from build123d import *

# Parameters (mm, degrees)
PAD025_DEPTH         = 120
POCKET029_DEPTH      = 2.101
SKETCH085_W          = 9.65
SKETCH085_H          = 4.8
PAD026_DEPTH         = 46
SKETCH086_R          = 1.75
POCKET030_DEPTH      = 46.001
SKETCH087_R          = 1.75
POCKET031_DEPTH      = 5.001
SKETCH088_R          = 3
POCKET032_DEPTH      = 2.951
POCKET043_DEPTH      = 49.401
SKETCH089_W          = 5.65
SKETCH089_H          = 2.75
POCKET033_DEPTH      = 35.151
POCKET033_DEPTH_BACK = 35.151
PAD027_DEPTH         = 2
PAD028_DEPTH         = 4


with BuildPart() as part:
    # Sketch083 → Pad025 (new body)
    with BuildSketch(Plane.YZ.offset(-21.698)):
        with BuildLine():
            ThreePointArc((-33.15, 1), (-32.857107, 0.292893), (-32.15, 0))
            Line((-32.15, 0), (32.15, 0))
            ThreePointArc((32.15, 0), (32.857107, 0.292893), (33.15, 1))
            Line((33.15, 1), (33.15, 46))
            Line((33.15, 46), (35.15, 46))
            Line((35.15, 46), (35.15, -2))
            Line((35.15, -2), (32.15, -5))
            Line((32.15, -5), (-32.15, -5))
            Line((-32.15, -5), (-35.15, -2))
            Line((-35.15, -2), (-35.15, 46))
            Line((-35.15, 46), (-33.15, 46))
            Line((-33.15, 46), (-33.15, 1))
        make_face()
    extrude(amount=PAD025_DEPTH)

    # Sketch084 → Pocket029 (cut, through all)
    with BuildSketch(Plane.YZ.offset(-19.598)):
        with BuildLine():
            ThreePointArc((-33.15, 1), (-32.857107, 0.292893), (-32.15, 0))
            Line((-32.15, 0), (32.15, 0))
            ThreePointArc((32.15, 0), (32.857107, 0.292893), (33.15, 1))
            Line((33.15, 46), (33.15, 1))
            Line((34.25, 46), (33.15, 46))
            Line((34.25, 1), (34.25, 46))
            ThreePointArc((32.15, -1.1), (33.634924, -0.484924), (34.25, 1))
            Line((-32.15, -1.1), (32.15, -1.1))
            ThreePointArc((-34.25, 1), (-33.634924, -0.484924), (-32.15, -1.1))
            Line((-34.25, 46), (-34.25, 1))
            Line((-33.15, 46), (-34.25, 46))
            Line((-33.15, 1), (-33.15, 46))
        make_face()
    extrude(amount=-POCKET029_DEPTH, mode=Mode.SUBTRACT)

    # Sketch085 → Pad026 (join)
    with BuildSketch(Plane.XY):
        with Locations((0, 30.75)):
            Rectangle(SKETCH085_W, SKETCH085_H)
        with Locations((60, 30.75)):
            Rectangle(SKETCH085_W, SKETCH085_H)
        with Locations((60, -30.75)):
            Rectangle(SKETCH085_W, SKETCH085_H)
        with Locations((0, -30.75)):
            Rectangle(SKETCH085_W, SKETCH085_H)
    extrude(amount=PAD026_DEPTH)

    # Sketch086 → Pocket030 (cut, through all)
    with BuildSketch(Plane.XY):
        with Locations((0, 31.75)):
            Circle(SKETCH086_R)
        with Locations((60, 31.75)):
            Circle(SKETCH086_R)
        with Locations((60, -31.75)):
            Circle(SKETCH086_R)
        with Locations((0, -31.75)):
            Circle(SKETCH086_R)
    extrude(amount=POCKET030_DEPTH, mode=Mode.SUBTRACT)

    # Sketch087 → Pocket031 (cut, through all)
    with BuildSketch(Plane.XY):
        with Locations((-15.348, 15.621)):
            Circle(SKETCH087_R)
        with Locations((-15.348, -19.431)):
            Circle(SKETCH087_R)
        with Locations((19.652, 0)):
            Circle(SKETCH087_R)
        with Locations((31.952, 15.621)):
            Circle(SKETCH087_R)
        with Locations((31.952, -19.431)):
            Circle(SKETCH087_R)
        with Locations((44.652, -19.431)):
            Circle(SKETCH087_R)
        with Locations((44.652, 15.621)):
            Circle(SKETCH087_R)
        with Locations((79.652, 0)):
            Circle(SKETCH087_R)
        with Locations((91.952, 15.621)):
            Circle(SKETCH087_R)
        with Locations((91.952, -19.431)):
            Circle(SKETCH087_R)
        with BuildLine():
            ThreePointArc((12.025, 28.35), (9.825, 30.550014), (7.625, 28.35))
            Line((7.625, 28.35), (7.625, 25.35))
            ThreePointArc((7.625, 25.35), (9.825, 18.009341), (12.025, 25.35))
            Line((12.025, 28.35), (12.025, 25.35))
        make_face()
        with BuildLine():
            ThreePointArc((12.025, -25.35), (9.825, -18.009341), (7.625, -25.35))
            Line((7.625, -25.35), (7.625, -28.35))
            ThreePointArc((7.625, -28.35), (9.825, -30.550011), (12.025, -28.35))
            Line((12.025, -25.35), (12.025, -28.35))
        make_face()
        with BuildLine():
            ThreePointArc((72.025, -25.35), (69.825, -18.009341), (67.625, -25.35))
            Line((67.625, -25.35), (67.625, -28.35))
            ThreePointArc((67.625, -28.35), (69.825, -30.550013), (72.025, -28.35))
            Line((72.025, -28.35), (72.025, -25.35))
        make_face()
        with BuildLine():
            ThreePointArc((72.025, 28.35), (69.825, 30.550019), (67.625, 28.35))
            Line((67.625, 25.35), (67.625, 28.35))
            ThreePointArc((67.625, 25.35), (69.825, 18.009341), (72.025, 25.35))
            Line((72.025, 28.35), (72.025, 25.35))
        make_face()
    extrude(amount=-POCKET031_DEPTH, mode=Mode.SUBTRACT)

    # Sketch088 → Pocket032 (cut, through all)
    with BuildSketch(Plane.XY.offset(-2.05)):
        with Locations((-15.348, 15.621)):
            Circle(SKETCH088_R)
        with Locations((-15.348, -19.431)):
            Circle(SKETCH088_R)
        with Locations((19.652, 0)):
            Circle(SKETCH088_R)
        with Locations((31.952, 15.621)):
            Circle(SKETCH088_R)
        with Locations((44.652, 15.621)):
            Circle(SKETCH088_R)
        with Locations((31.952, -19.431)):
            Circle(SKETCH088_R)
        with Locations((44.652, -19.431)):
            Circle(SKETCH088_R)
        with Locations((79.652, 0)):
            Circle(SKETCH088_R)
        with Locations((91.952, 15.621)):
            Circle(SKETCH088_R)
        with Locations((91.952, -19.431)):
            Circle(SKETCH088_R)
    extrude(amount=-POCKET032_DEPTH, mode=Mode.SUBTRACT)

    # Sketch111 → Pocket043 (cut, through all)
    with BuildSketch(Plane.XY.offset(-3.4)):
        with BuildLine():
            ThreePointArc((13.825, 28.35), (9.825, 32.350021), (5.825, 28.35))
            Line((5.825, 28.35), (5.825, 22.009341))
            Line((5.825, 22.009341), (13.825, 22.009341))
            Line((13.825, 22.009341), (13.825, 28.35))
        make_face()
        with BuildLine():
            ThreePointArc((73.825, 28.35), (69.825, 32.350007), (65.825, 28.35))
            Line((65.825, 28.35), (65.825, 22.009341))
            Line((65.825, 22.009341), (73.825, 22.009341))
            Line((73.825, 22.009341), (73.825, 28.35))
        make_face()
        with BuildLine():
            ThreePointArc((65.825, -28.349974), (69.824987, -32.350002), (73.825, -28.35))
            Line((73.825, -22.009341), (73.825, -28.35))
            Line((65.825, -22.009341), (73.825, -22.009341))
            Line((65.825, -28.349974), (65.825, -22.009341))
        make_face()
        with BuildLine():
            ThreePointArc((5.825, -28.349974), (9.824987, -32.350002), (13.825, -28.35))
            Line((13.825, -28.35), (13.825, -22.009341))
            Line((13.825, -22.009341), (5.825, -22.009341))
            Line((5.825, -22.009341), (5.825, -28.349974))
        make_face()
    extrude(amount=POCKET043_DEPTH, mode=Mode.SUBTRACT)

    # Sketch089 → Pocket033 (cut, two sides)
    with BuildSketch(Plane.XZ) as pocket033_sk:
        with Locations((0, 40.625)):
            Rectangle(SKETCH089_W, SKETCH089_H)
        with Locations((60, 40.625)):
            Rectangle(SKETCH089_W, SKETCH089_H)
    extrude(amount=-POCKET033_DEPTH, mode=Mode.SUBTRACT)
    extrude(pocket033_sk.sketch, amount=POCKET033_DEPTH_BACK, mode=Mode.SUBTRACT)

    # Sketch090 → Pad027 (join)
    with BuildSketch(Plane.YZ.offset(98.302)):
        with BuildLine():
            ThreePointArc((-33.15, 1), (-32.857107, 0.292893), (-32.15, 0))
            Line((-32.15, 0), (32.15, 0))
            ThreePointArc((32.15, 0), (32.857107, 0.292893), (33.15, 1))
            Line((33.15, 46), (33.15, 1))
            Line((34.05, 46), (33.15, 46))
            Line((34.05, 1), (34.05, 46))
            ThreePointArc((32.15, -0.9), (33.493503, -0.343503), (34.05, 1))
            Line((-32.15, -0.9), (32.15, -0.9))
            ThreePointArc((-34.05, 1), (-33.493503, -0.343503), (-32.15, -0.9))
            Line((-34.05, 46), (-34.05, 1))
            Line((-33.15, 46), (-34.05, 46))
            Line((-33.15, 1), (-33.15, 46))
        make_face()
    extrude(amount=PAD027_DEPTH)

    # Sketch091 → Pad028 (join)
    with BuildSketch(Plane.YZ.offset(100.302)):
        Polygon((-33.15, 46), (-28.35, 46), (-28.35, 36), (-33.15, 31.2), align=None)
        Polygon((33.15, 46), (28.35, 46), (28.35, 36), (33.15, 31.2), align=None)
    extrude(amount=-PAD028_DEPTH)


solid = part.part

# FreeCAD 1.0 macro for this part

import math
import FreeCAD as App
import Part
import Sketcher
from FreeCAD import Vector


def add_polygon(sketch, points):
    """Adds a closed chain of lines whose ends are joined by coincident constraints."""
    first, n = sketch.GeometryCount, len(points)
    for a, b in zip(points, points[1:] + points[:1]):
        sketch.addGeometry(Part.LineSegment(App.Vector(*a, 0), App.Vector(*b, 0)), False)
    for i in range(n):
        sketch.addConstraint(Sketcher.Constraint("Coincident", first + i, 2, first + (i + 1) % n, 1))

doc = App.newDocument("Part")
body = doc.addObject("PartDesign::Body", "Body")

# Sketch on YZ plane
sketch1 = doc.addObject("Sketcher::SketchObject", "Sketch")
body.addObject(sketch1)
sketch1.AttachmentSupport = (doc.YZ_Plane, [""])
sketch1.MapMode = "FlatFace"
sketch1.AttachmentOffset = App.Placement(Vector(0, 0, -21.698), App.Rotation())
sketch1.addGeometry(Part.ArcOfCircle(Part.Circle(Vector(-32.150001, 0.999999, 0), Vector(0, 0, 1), 0.999999), math.radians(179.999957), math.radians(270.000043)), False)
sketch1.addGeometry(Part.LineSegment(Vector(-33.15, 1, 0), Vector(-33.15, 46, 0)), False)
sketch1.addGeometry(Part.LineSegment(Vector(-33.15, 46, 0), Vector(-35.15, 46, 0)), False)
sketch1.addGeometry(Part.LineSegment(Vector(-35.15, 46, 0), Vector(-35.15, -2, 0)), False)
sketch1.addGeometry(Part.LineSegment(Vector(-35.15, -2, 0), Vector(-32.15, -5, 0)), False)
sketch1.addGeometry(Part.LineSegment(Vector(-32.15, -5, 0), Vector(32.15, -5, 0)), False)
sketch1.addGeometry(Part.LineSegment(Vector(32.15, -5, 0), Vector(35.15, -2, 0)), False)
sketch1.addGeometry(Part.LineSegment(Vector(35.15, -2, 0), Vector(35.15, 46, 0)), False)
sketch1.addGeometry(Part.LineSegment(Vector(35.15, 46, 0), Vector(33.15, 46, 0)), False)
sketch1.addGeometry(Part.LineSegment(Vector(33.15, 46, 0), Vector(33.15, 1, 0)), False)
sketch1.addGeometry(Part.ArcOfCircle(Part.Circle(Vector(32.150001, 0.999999, 0), Vector(0, 0, 1), 0.999999), math.radians(-90.000043), math.radians(0.000043)), False)
sketch1.addGeometry(Part.LineSegment(Vector(32.15, 0, 0), Vector(-32.15, 0, 0)), False)
sketch1.addConstraint(Sketcher.Constraint("Tangent", 0, 1, 1, 1))
sketch1.addConstraint(Sketcher.Constraint("Coincident", 1, 2, 2, 1))
sketch1.addConstraint(Sketcher.Constraint("Coincident", 2, 2, 3, 1))
sketch1.addConstraint(Sketcher.Constraint("Coincident", 3, 2, 4, 1))
sketch1.addConstraint(Sketcher.Constraint("Coincident", 4, 2, 5, 1))
sketch1.addConstraint(Sketcher.Constraint("Coincident", 5, 2, 6, 1))
sketch1.addConstraint(Sketcher.Constraint("Coincident", 6, 2, 7, 1))
sketch1.addConstraint(Sketcher.Constraint("Coincident", 7, 2, 8, 1))
sketch1.addConstraint(Sketcher.Constraint("Coincident", 8, 2, 9, 1))
sketch1.addConstraint(Sketcher.Constraint("Tangent", 9, 2, 10, 2))
sketch1.addConstraint(Sketcher.Constraint("Tangent", 10, 1, 11, 1))
sketch1.addConstraint(Sketcher.Constraint("Tangent", 11, 2, 0, 2))
sketch1.addConstraint(Sketcher.Constraint("Vertical", 1))
sketch1.addConstraint(Sketcher.Constraint("Horizontal", 2))
sketch1.addConstraint(Sketcher.Constraint("Vertical", 3))
sketch1.addConstraint(Sketcher.Constraint("Horizontal", 5))
sketch1.addConstraint(Sketcher.Constraint("Vertical", 7))
sketch1.addConstraint(Sketcher.Constraint("Horizontal", 8))
sketch1.addConstraint(Sketcher.Constraint("Vertical", 9))
sketch1.addConstraint(Sketcher.Constraint("Horizontal", 11))
sketch1.addConstraint(Sketcher.Constraint("Equal", 0, 10))
sketch1.addConstraint(Sketcher.Constraint("Symmetric", 10, 1, 11, 2, -1, 1))
sketch1.addConstraint(Sketcher.Constraint("Symmetric", 3, 2, 6, 2, -2))
sketch1.addConstraint(Sketcher.Constraint("Perpendicular", 4, 6))
sketch1.addConstraint(Sketcher.Constraint("Horizontal", 2, 2, 7, 2))
sketch1.addConstraint(Sketcher.Constraint("Vertical", 0, 3, 4, 2))
sketch1.addConstraint(Sketcher.Constraint("Vertical", 10, 3, 5, 2))
sketch1.addConstraint(Sketcher.Constraint("Radius", 0, 0.999999))
sketch1.addConstraint(Sketcher.Constraint("DistanceX", 2, 2, 2, 1, 2.0))
sketch1.addConstraint(Sketcher.Constraint("DistanceY", 1, 1, 1, 2, 45.0))
sketch1.addConstraint(Sketcher.Constraint("DistanceY", 3, 2, 3, 1, 48.0))
sketch1.addConstraint(Sketcher.Constraint("DistanceX", 5, 1, 5, 2, 64.3))
pad1 = doc.addObject("PartDesign::Pad", "Pad")
body.addObject(pad1)
pad1.Profile = sketch1
pad1.Length = 120

# Sketch on YZ plane
sketch2 = doc.addObject("Sketcher::SketchObject", "Sketch001")
body.addObject(sketch2)
sketch2.AttachmentSupport = (doc.YZ_Plane, [""])
sketch2.MapMode = "FlatFace"
sketch2.AttachmentOffset = App.Placement(Vector(0, 0, -19.598), App.Rotation())
sketch2.addGeometry(Part.ArcOfCircle(Part.Circle(Vector(-32.150001, 0.999999, 0), Vector(0, 0, 1), 0.999999), math.radians(179.999957), math.radians(270.000043)), False)
sketch2.addGeometry(Part.LineSegment(Vector(-33.15, 1, 0), Vector(-33.15, 46, 0)), False)
sketch2.addGeometry(Part.LineSegment(Vector(-33.15, 46, 0), Vector(-34.25, 46, 0)), False)
sketch2.addGeometry(Part.LineSegment(Vector(-34.25, 46, 0), Vector(-34.25, 1, 0)), False)
sketch2.addGeometry(Part.ArcOfCircle(Part.Circle(Vector(-32.149999, 1.000001, 0), Vector(0, 0, 1), 2.100001), math.radians(-179.999978), math.radians(-90.000022)), False)
sketch2.addGeometry(Part.LineSegment(Vector(-32.15, -1.1, 0), Vector(32.15, -1.1, 0)), False)
sketch2.addGeometry(Part.ArcOfCircle(Part.Circle(Vector(32.149999, 1.000001, 0), Vector(0, 0, 1), 2.100001), math.radians(-89.999978), math.radians(-0.000022)), False)
sketch2.addGeometry(Part.LineSegment(Vector(34.25, 1, 0), Vector(34.25, 46, 0)), False)
sketch2.addGeometry(Part.LineSegment(Vector(34.25, 46, 0), Vector(33.15, 46, 0)), False)
sketch2.addGeometry(Part.LineSegment(Vector(33.15, 46, 0), Vector(33.15, 1, 0)), False)
sketch2.addGeometry(Part.ArcOfCircle(Part.Circle(Vector(32.150001, 0.999999, 0), Vector(0, 0, 1), 0.999999), math.radians(-90.000043), math.radians(0.000043)), False)
sketch2.addGeometry(Part.LineSegment(Vector(32.15, 0, 0), Vector(-32.15, 0, 0)), False)
sketch2.addConstraint(Sketcher.Constraint("Tangent", 0, 1, 1, 1))
sketch2.addConstraint(Sketcher.Constraint("Coincident", 1, 2, 2, 1))
sketch2.addConstraint(Sketcher.Constraint("Coincident", 2, 2, 3, 1))
sketch2.addConstraint(Sketcher.Constraint("Tangent", 3, 2, 4, 1))
sketch2.addConstraint(Sketcher.Constraint("Tangent", 4, 2, 5, 1))
sketch2.addConstraint(Sketcher.Constraint("Tangent", 5, 2, 6, 1))
sketch2.addConstraint(Sketcher.Constraint("Tangent", 6, 2, 7, 1))
sketch2.addConstraint(Sketcher.Constraint("Coincident", 7, 2, 8, 1))
sketch2.addConstraint(Sketcher.Constraint("Coincident", 8, 2, 9, 1))
sketch2.addConstraint(Sketcher.Constraint("Tangent", 9, 2, 10, 2))
sketch2.addConstraint(Sketcher.Constraint("Tangent", 10, 1, 11, 1))
sketch2.addConstraint(Sketcher.Constraint("Tangent", 11, 2, 0, 2))
sketch2.addConstraint(Sketcher.Constraint("Vertical", 1))
sketch2.addConstraint(Sketcher.Constraint("Horizontal", 2))
sketch2.addConstraint(Sketcher.Constraint("Vertical", 3))
sketch2.addConstraint(Sketcher.Constraint("Horizontal", 5))
sketch2.addConstraint(Sketcher.Constraint("Vertical", 7))
sketch2.addConstraint(Sketcher.Constraint("Horizontal", 8))
sketch2.addConstraint(Sketcher.Constraint("Vertical", 9))
sketch2.addConstraint(Sketcher.Constraint("Horizontal", 11))
sketch2.addConstraint(Sketcher.Constraint("Coincident", 4, 3, 0, 3))
sketch2.addConstraint(Sketcher.Constraint("Coincident", 10, 3, 6, 3))
sketch2.addConstraint(Sketcher.Constraint("Equal", 4, 6))
sketch2.addConstraint(Sketcher.Constraint("Symmetric", 10, 1, 11, 2, -1, 1))
sketch2.addConstraint(Sketcher.Constraint("Horizontal", 2, 2, 7, 2))
sketch2.addConstraint(Sketcher.Constraint("Radius", 0, 0.999999))
sketch2.addConstraint(Sketcher.Constraint("Radius", 4, 2.100001))
sketch2.addConstraint(Sketcher.Constraint("DistanceY", 1, 1, 1, 2, 45.0))
sketch2.addConstraint(Sketcher.Constraint("DistanceX", 5, 1, 5, 2, 64.3))
pocket1 = doc.addObject("PartDesign::Pocket", "Pocket")
body.addObject(pocket1)
pocket1.Profile = sketch2
pocket1.Type = "ThroughAll"

# Sketch on XY plane
sketch3 = doc.addObject("Sketcher::SketchObject", "Sketch002")
body.addObject(sketch3)
sketch3.AttachmentSupport = (doc.XY_Plane, [""])
sketch3.MapMode = "FlatFace"
add_polygon(sketch3, [(-4.825, 33.15), (-4.825, 28.35), (4.825, 28.35), (4.825, 33.15)])  # lines 0-3
add_polygon(sketch3, [(55.175, 33.15), (55.175, 28.35), (64.825, 28.35), (64.825, 33.15)])  # lines 4-7
add_polygon(sketch3, [(55.175, -28.35), (55.175, -33.15), (64.825, -33.15), (64.825, -28.35)])  # lines 8-11
add_polygon(sketch3, [(-4.825, -28.35), (-4.825, -33.15), (4.825, -33.15), (4.825, -28.35)])  # lines 12-15
sketch3.addConstraint(Sketcher.Constraint("Vertical", 0))
sketch3.addConstraint(Sketcher.Constraint("Horizontal", 1))
sketch3.addConstraint(Sketcher.Constraint("Vertical", 2))
sketch3.addConstraint(Sketcher.Constraint("Horizontal", 3))
sketch3.addConstraint(Sketcher.Constraint("Vertical", 4))
sketch3.addConstraint(Sketcher.Constraint("Horizontal", 5))
sketch3.addConstraint(Sketcher.Constraint("Vertical", 6))
sketch3.addConstraint(Sketcher.Constraint("Horizontal", 7))
sketch3.addConstraint(Sketcher.Constraint("Vertical", 8))
sketch3.addConstraint(Sketcher.Constraint("Horizontal", 9))
sketch3.addConstraint(Sketcher.Constraint("Vertical", 10))
sketch3.addConstraint(Sketcher.Constraint("Horizontal", 11))
sketch3.addConstraint(Sketcher.Constraint("Vertical", 12))
sketch3.addConstraint(Sketcher.Constraint("Horizontal", 13))
sketch3.addConstraint(Sketcher.Constraint("Vertical", 14))
sketch3.addConstraint(Sketcher.Constraint("Horizontal", 15))
sketch3.addConstraint(Sketcher.Constraint("Symmetric", 2, 2, 12, 2, -1, 1))
sketch3.addConstraint(Sketcher.Constraint("Symmetric", 0, 2, 14, 2, -1, 1))
sketch3.addConstraint(Sketcher.Constraint("Symmetric", 7, 2, 8, 2, -1))
sketch3.addConstraint(Sketcher.Constraint("Symmetric", 5, 2, 10, 2, -1))
sketch3.addConstraint(Sketcher.Constraint("Horizontal", 1, 2, 4, 2))
sketch3.addConstraint(Sketcher.Constraint("Horizontal", 3, 2, 6, 2))
sketch3.addConstraint(Sketcher.Constraint("Vertical", 3, 2, 12, 2))
sketch3.addConstraint(Sketcher.Constraint("Equal", 3, 5))
sketch3.addConstraint(Sketcher.Constraint("DistanceY", 0, 2, 0, 1, 4.8))
sketch3.addConstraint(Sketcher.Constraint("DistanceX", 0, 2, 4, 2, 60.0))
sketch3.addConstraint(Sketcher.Constraint("DistanceX", 1, 1, 1, 2, 9.65))
sketch3.addConstraint(Sketcher.Constraint("DistanceY", 8, 2, 4, 2, 61.5))
pad2 = doc.addObject("PartDesign::Pad", "Pad001")
body.addObject(pad2)
pad2.Profile = sketch3
pad2.Length = 46

# Sketch on XY plane
sketch4 = doc.addObject("Sketcher::SketchObject", "Sketch003")
body.addObject(sketch4)
sketch4.AttachmentSupport = (doc.XY_Plane, [""])
sketch4.MapMode = "FlatFace"
sketch4.addGeometry(Part.Circle(Vector(0, 31.75, 0), Vector(0, 0, 1), 1.75), False)
sketch4.addGeometry(Part.Circle(Vector(60, 31.75, 0), Vector(0, 0, 1), 1.75), False)
sketch4.addGeometry(Part.Circle(Vector(60, -31.75, 0), Vector(0, 0, 1), 1.75), False)
sketch4.addGeometry(Part.Circle(Vector(0, -31.75, 0), Vector(0, 0, 1), 1.75), False)
sketch4.addConstraint(Sketcher.Constraint("Equal", 0, 1))
sketch4.addConstraint(Sketcher.Constraint("Equal", 1, 2))
sketch4.addConstraint(Sketcher.Constraint("Equal", 2, 3))
sketch4.addConstraint(Sketcher.Constraint("Symmetric", 0, 3, 3, 3, -1, 1))
sketch4.addConstraint(Sketcher.Constraint("Symmetric", 1, 3, 2, 3, -1))
sketch4.addConstraint(Sketcher.Constraint("PointOnObject", 0, 3, -2))
sketch4.addConstraint(Sketcher.Constraint("Horizontal", 0, 3, 1, 3))
sketch4.addConstraint(Sketcher.Constraint("Diameter", 0, 3.5))
sketch4.addConstraint(Sketcher.Constraint("DistanceX", -1, 1, 1, 3, 60.0))
sketch4.addConstraint(Sketcher.Constraint("DistanceY", 2, 3, 1, 3, 63.5))
pocket2 = doc.addObject("PartDesign::Pocket", "Pocket001")
body.addObject(pocket2)
pocket2.Profile = sketch4
pocket2.Type = "ThroughAll"
pocket2.Reversed = True

# Sketch on XY plane
sketch5 = doc.addObject("Sketcher::SketchObject", "Sketch004")
body.addObject(sketch5)
sketch5.AttachmentSupport = (doc.XY_Plane, [""])
sketch5.MapMode = "FlatFace"
sketch5.addGeometry(Part.Circle(Vector(-15.348, 15.621, 0), Vector(0, 0, 1), 1.75), False)
sketch5.addGeometry(Part.Circle(Vector(-15.348, -19.431, 0), Vector(0, 0, 1), 1.75), False)
sketch5.addGeometry(Part.Circle(Vector(19.652, 0, 0), Vector(0, 0, 1), 1.75), False)
sketch5.addGeometry(Part.Circle(Vector(31.952, 15.621, 0), Vector(0, 0, 1), 1.75), False)
sketch5.addGeometry(Part.Circle(Vector(31.952, -19.431, 0), Vector(0, 0, 1), 1.75), False)
sketch5.addGeometry(Part.Circle(Vector(44.652, -19.431, 0), Vector(0, 0, 1), 1.75), False)
sketch5.addGeometry(Part.Circle(Vector(44.652, 15.621, 0), Vector(0, 0, 1), 1.75), False)
sketch5.addGeometry(Part.Circle(Vector(79.652, 0, 0), Vector(0, 0, 1), 1.75), False)
sketch5.addGeometry(Part.Circle(Vector(91.952, 15.621, 0), Vector(0, 0, 1), 1.75), False)
sketch5.addGeometry(Part.Circle(Vector(91.952, -19.431, 0), Vector(0, 0, 1), 1.75), False)
sketch5.addGeometry(Part.ArcOfCircle(Part.Circle(Vector(9.825, 28.350014, 0), Vector(0, 0, 1), 2.2), math.radians(-0.000365), math.radians(180.000365)), False)
sketch5.addGeometry(Part.LineSegment(Vector(7.625, 28.35, 0), Vector(7.625, 25.35, 0)), False)
sketch5.addGeometry(Part.ArcOfCircle(Part.Circle(Vector(9.825, 22.009341, 0), Vector(0, 0, 1), 4), math.radians(123.367011), math.radians(416.632989)), False)
sketch5.addGeometry(Part.LineSegment(Vector(12.025, 25.35, 0), Vector(12.025, 28.35, 0)), False)
sketch5.addGeometry(Part.ArcOfCircle(Part.Circle(Vector(9.825, -22.009341, 0), Vector(0, 0, 1), 4), math.radians(-56.632989), math.radians(236.632989)), False)
sketch5.addGeometry(Part.LineSegment(Vector(7.625, -25.35, 0), Vector(7.625, -28.35, 0)), False)
sketch5.addGeometry(Part.ArcOfCircle(Part.Circle(Vector(9.825, -28.350011, 0), Vector(0, 0, 1), 2.2), math.radians(179.999714), math.radians(360.000286)), False)
sketch5.addGeometry(Part.LineSegment(Vector(12.025, -28.35, 0), Vector(12.025, -25.35, 0)), False)
sketch5.addGeometry(Part.ArcOfCircle(Part.Circle(Vector(69.825, -22.009341, 0), Vector(0, 0, 1), 4), math.radians(-56.632989), math.radians(236.632989)), False)
sketch5.addGeometry(Part.LineSegment(Vector(67.625, -25.35, 0), Vector(67.625, -28.35, 0)), False)
sketch5.addGeometry(Part.ArcOfCircle(Part.Circle(Vector(69.825, -28.350013, 0), Vector(0, 0, 1), 2.2), math.radians(179.999661), math.radians(360.000339)), False)
sketch5.addGeometry(Part.LineSegment(Vector(72.025, -28.35, 0), Vector(72.025, -25.35, 0)), False)
sketch5.addGeometry(Part.ArcOfCircle(Part.Circle(Vector(69.825, 28.350019, 0), Vector(0, 0, 1), 2.2), math.radians(-0.000495), math.radians(180.000495)), False)
sketch5.addGeometry(Part.LineSegment(Vector(67.625, 28.35, 0), Vector(67.625, 25.35, 0)), False)
sketch5.addGeometry(Part.ArcOfCircle(Part.Circle(Vector(69.825, 22.009341, 0), Vector(0, 0, 1), 4), math.radians(123.367011), math.radians(416.632989)), False)
sketch5.addGeometry(Part.LineSegment(Vector(72.025, 25.35, 0), Vector(72.025, 28.35, 0)), False)
sketch5.addConstraint(Sketcher.Constraint("Coincident", 10, 2, 11, 1))
sketch5.addConstraint(Sketcher.Constraint("Coincident", 11, 2, 12, 1))
sketch5.addConstraint(Sketcher.Constraint("Coincident", 12, 2, 13, 1))
sketch5.addConstraint(Sketcher.Constraint("Coincident", 13, 2, 10, 1))
sketch5.addConstraint(Sketcher.Constraint("Coincident", 14, 2, 15, 1))
sketch5.addConstraint(Sketcher.Constraint("Coincident", 15, 2, 16, 1))
sketch5.addConstraint(Sketcher.Constraint("Coincident", 16, 2, 17, 1))
sketch5.addConstraint(Sketcher.Constraint("Coincident", 17, 2, 14, 1))
sketch5.addConstraint(Sketcher.Constraint("Coincident", 18, 2, 19, 1))
sketch5.addConstraint(Sketcher.Constraint("Coincident", 19, 2, 20, 1))
sketch5.addConstraint(Sketcher.Constraint("Coincident", 20, 2, 21, 1))
sketch5.addConstraint(Sketcher.Constraint("Coincident", 21, 2, 18, 1))
sketch5.addConstraint(Sketcher.Constraint("Coincident", 22, 2, 23, 1))
sketch5.addConstraint(Sketcher.Constraint("Coincident", 23, 2, 24, 1))
sketch5.addConstraint(Sketcher.Constraint("Coincident", 24, 2, 25, 1))
sketch5.addConstraint(Sketcher.Constraint("Coincident", 25, 2, 22, 1))
sketch5.addConstraint(Sketcher.Constraint("Vertical", 11))
sketch5.addConstraint(Sketcher.Constraint("Vertical", 13))
sketch5.addConstraint(Sketcher.Constraint("Vertical", 15))
sketch5.addConstraint(Sketcher.Constraint("Vertical", 17))
sketch5.addConstraint(Sketcher.Constraint("Vertical", 19))
sketch5.addConstraint(Sketcher.Constraint("Vertical", 21))
sketch5.addConstraint(Sketcher.Constraint("Vertical", 23))
sketch5.addConstraint(Sketcher.Constraint("Vertical", 25))
sketch5.addConstraint(Sketcher.Constraint("Equal", 0, 1))
sketch5.addConstraint(Sketcher.Constraint("Equal", 1, 2))
sketch5.addConstraint(Sketcher.Constraint("Equal", 2, 3))
sketch5.addConstraint(Sketcher.Constraint("Equal", 3, 4))
sketch5.addConstraint(Sketcher.Constraint("Equal", 4, 5))
sketch5.addConstraint(Sketcher.Constraint("Equal", 5, 6))
sketch5.addConstraint(Sketcher.Constraint("Equal", 6, 7))
sketch5.addConstraint(Sketcher.Constraint("Equal", 7, 8))
sketch5.addConstraint(Sketcher.Constraint("Equal", 8, 9))
sketch5.addConstraint(Sketcher.Constraint("Equal", 12, 14))
sketch5.addConstraint(Sketcher.Constraint("Equal", 10, 16))
sketch5.addConstraint(Sketcher.Constraint("Equal", 14, 18))
sketch5.addConstraint(Sketcher.Constraint("Equal", 16, 20))
sketch5.addConstraint(Sketcher.Constraint("Equal", 20, 22))
sketch5.addConstraint(Sketcher.Constraint("Equal", 18, 24))
sketch5.addConstraint(Sketcher.Constraint("Symmetric", 12, 3, 14, 3, -1))
sketch5.addConstraint(Sketcher.Constraint("Symmetric", 10, 3, 16, 3, -1))
sketch5.addConstraint(Sketcher.Constraint("Symmetric", 20, 3, 22, 3, -1))
sketch5.addConstraint(Sketcher.Constraint("Symmetric", 18, 3, 24, 3, -1))
sketch5.addConstraint(Sketcher.Constraint("PointOnObject", 2, 3, -1))
sketch5.addConstraint(Sketcher.Constraint("PointOnObject", 7, 3, -1))
sketch5.addConstraint(Sketcher.Constraint("Horizontal", 0, 3, 3, 3))
sketch5.addConstraint(Sketcher.Constraint("Horizontal", 1, 3, 4, 3))
sketch5.addConstraint(Sketcher.Constraint("Horizontal", 4, 3, 5, 3))
sketch5.addConstraint(Sketcher.Constraint("Horizontal", 3, 3, 6, 3))
sketch5.addConstraint(Sketcher.Constraint("Horizontal", 6, 3, 8, 3))
sketch5.addConstraint(Sketcher.Constraint("Horizontal", 5, 3, 9, 3))
sketch5.addConstraint(Sketcher.Constraint("Horizontal", 14, 3, 18, 3))
sketch5.addConstraint(Sketcher.Constraint("Horizontal", 11, 2, 12, 2))
sketch5.addConstraint(Sketcher.Constraint("Horizontal", 10, 2, 13, 2))
sketch5.addConstraint(Sketcher.Constraint("Horizontal", 15, 2, 16, 2))
sketch5.addConstraint(Sketcher.Constraint("Horizontal", 17, 2, 18, 2))
sketch5.addConstraint(Sketcher.Constraint("Horizontal", 16, 2, 19, 2))
sketch5.addConstraint(Sketcher.Constraint("Horizontal", 19, 2, 20, 2))
sketch5.addConstraint(Sketcher.Constraint("Horizontal", 13, 2, 22, 2))
sketch5.addConstraint(Sketcher.Constraint("Horizontal", 22, 2, 25, 2))
sketch5.addConstraint(Sketcher.Constraint("Vertical", 0, 3, 1, 3))
sketch5.addConstraint(Sketcher.Constraint("Vertical", 3, 3, 4, 3))
sketch5.addConstraint(Sketcher.Constraint("Vertical", 5, 3, 6, 3))
sketch5.addConstraint(Sketcher.Constraint("Vertical", 8, 3, 9, 3))
sketch5.addConstraint(Sketcher.Constraint("Equal", 13, 15))
sketch5.addConstraint(Sketcher.Constraint("Radius", 12, 4.0))
sketch5.addConstraint(Sketcher.Constraint("Diameter", 0, 3.5))
sketch5.addConstraint(Sketcher.Constraint("Radius", 10, 2.2))
sketch5.addConstraint(Sketcher.Constraint("DistanceY", 11, 2, 11, 1, 3.0))
sketch5.addConstraint(Sketcher.Constraint("DistanceX", 0, 3, 2, 3, 35.0))
sketch5.addConstraint(Sketcher.Constraint("DistanceX", 2, 3, 5, 3, 25.0))
sketch5.addConstraint(Sketcher.Constraint("DistanceX", 6, 3, 7, 3, 35.0))
sketch5.addConstraint(Sketcher.Constraint("DistanceX", 3, 3, 8, 3, 60.0))
sketch5.addConstraint(Sketcher.Constraint("DistanceX", 2, 3, 3, 3, 12.3))
sketch5.addConstraint(Sketcher.Constraint("DistanceY", -1, 1, 10, 2, 28.35))
sketch5.addConstraint(Sketcher.Constraint("DistanceX", 0, 3, -1, 1, 15.348))
sketch5.addConstraint(Sketcher.Constraint("DistanceY", -1, 1, 0, 3, 15.621))
sketch5.addConstraint(Sketcher.Constraint("DistanceY", 1, 3, -1, 1, 19.431))
sketch5.addConstraint(Sketcher.Constraint("DistanceX", -1, 1, 10, 3, 9.825))
sketch5.addConstraint(Sketcher.Constraint("DistanceX", -1, 1, 18, 3, 69.825))
sketch5.addConstraint(Sketcher.Constraint("DistanceY", 16, 3, -1, 1, 28.350011))
sketch5.addConstraint(Sketcher.Constraint("DistanceY", -1, 1, 22, 3, 28.350019))
pocket3 = doc.addObject("PartDesign::Pocket", "Pocket002")
body.addObject(pocket3)
pocket3.Profile = sketch5
pocket3.Type = "ThroughAll"

# Sketch on XY plane
sketch6 = doc.addObject("Sketcher::SketchObject", "Sketch005")
body.addObject(sketch6)
sketch6.AttachmentSupport = (doc.XY_Plane, [""])
sketch6.MapMode = "FlatFace"
sketch6.AttachmentOffset = App.Placement(Vector(0, 0, -2.05), App.Rotation())
sketch6.addGeometry(Part.Circle(Vector(-15.348, 15.621, 0), Vector(0, 0, 1), 3), False)
sketch6.addGeometry(Part.Circle(Vector(-15.348, -19.431, 0), Vector(0, 0, 1), 3), False)
sketch6.addGeometry(Part.Circle(Vector(19.652, 0, 0), Vector(0, 0, 1), 3), False)
sketch6.addGeometry(Part.Circle(Vector(31.952, 15.621, 0), Vector(0, 0, 1), 3), False)
sketch6.addGeometry(Part.Circle(Vector(44.652, 15.621, 0), Vector(0, 0, 1), 3), False)
sketch6.addGeometry(Part.Circle(Vector(31.952, -19.431, 0), Vector(0, 0, 1), 3), False)
sketch6.addGeometry(Part.Circle(Vector(44.652, -19.431, 0), Vector(0, 0, 1), 3), False)
sketch6.addGeometry(Part.Circle(Vector(79.652, 0, 0), Vector(0, 0, 1), 3), False)
sketch6.addGeometry(Part.Circle(Vector(91.952, 15.621, 0), Vector(0, 0, 1), 3), False)
sketch6.addGeometry(Part.Circle(Vector(91.952, -19.431, 0), Vector(0, 0, 1), 3), False)
sketch6.addConstraint(Sketcher.Constraint("Equal", 0, 1))
sketch6.addConstraint(Sketcher.Constraint("Equal", 1, 2))
sketch6.addConstraint(Sketcher.Constraint("Equal", 2, 3))
sketch6.addConstraint(Sketcher.Constraint("Equal", 3, 4))
sketch6.addConstraint(Sketcher.Constraint("Equal", 4, 5))
sketch6.addConstraint(Sketcher.Constraint("Equal", 5, 6))
sketch6.addConstraint(Sketcher.Constraint("Equal", 6, 7))
sketch6.addConstraint(Sketcher.Constraint("Equal", 7, 8))
sketch6.addConstraint(Sketcher.Constraint("Equal", 8, 9))
sketch6.addConstraint(Sketcher.Constraint("PointOnObject", 2, 3, -1))
sketch6.addConstraint(Sketcher.Constraint("PointOnObject", 7, 3, -1))
sketch6.addConstraint(Sketcher.Constraint("Horizontal", 0, 3, 3, 3))
sketch6.addConstraint(Sketcher.Constraint("Horizontal", 3, 3, 4, 3))
sketch6.addConstraint(Sketcher.Constraint("Horizontal", 1, 3, 5, 3))
sketch6.addConstraint(Sketcher.Constraint("Horizontal", 5, 3, 6, 3))
sketch6.addConstraint(Sketcher.Constraint("Horizontal", 4, 3, 8, 3))
sketch6.addConstraint(Sketcher.Constraint("Horizontal", 6, 3, 9, 3))
sketch6.addConstraint(Sketcher.Constraint("Vertical", 0, 3, 1, 3))
sketch6.addConstraint(Sketcher.Constraint("Vertical", 3, 3, 5, 3))
sketch6.addConstraint(Sketcher.Constraint("Vertical", 4, 3, 6, 3))
sketch6.addConstraint(Sketcher.Constraint("Vertical", 8, 3, 9, 3))
sketch6.addConstraint(Sketcher.Constraint("Diameter", 0, 6.0))
sketch6.addConstraint(Sketcher.Constraint("DistanceX", 0, 3, 2, 3, 35.0))
sketch6.addConstraint(Sketcher.Constraint("DistanceX", 2, 3, 4, 3, 25.0))
sketch6.addConstraint(Sketcher.Constraint("DistanceX", 4, 3, 7, 3, 35.0))
sketch6.addConstraint(Sketcher.Constraint("DistanceX", 3, 3, 8, 3, 60.0))
sketch6.addConstraint(Sketcher.Constraint("DistanceX", 2, 3, 3, 3, 12.3))
sketch6.addConstraint(Sketcher.Constraint("DistanceX", 0, 3, -1, 1, 15.348))
sketch6.addConstraint(Sketcher.Constraint("DistanceY", -1, 1, 0, 3, 15.621))
sketch6.addConstraint(Sketcher.Constraint("DistanceY", 1, 3, -1, 1, 19.431))
pocket4 = doc.addObject("PartDesign::Pocket", "Pocket003")
body.addObject(pocket4)
pocket4.Profile = sketch6
pocket4.Type = "ThroughAll"

# Sketch on XY plane
sketch7 = doc.addObject("Sketcher::SketchObject", "Sketch006")
body.addObject(sketch7)
sketch7.AttachmentSupport = (doc.XY_Plane, [""])
sketch7.MapMode = "FlatFace"
sketch7.AttachmentOffset = App.Placement(Vector(0, 0, -3.4), App.Rotation())
sketch7.addGeometry(Part.ArcOfCircle(Part.Circle(Vector(9.825, 28.350021, 0), Vector(0, 0, 1), 4), math.radians(-0.000301), math.radians(180.000301)), False)
sketch7.addGeometry(Part.LineSegment(Vector(5.825, 28.35, 0), Vector(5.825, 22.009341, 0)), False)
sketch7.addGeometry(Part.LineSegment(Vector(5.825, 22.009341, 0), Vector(13.825, 22.009341, 0)), False)
sketch7.addGeometry(Part.LineSegment(Vector(13.825, 22.009341, 0), Vector(13.825, 28.35, 0)), False)
sketch7.addGeometry(Part.ArcOfCircle(Part.Circle(Vector(69.825, 28.350007, 0), Vector(0, 0, 1), 4), math.radians(-0.0001), math.radians(180.0001)), False)
sketch7.addGeometry(Part.LineSegment(Vector(65.825, 28.35, 0), Vector(65.825, 22.009341, 0)), False)
sketch7.addGeometry(Part.LineSegment(Vector(65.825, 22.009341, 0), Vector(73.825, 22.009341, 0)), False)
sketch7.addGeometry(Part.LineSegment(Vector(73.825, 22.009341, 0), Vector(73.825, 28.35, 0)), False)
sketch7.addGeometry(Part.ArcOfCircle(Part.Circle(Vector(69.825, -28.350002, 0), Vector(0, 0, 1), 4), math.radians(179.999599), math.radians(360.000029)), False)
sketch7.addGeometry(Part.LineSegment(Vector(73.825, -28.35, 0), Vector(73.825, -22.009341, 0)), False)
sketch7.addGeometry(Part.LineSegment(Vector(73.825, -22.009341, 0), Vector(65.825, -22.009341, 0)), False)
sketch7.addGeometry(Part.LineSegment(Vector(65.825, -22.009341, 0), Vector(65.825, -28.349974, 0)), False)
sketch7.addGeometry(Part.ArcOfCircle(Part.Circle(Vector(9.825, -28.350002, 0), Vector(0, 0, 1), 4), math.radians(179.999599), math.radians(360.000029)), False)
sketch7.addGeometry(Part.LineSegment(Vector(13.825, -28.35, 0), Vector(13.825, -22.009341, 0)), False)
sketch7.addGeometry(Part.LineSegment(Vector(13.825, -22.009341, 0), Vector(5.825, -22.009341, 0)), False)
sketch7.addGeometry(Part.LineSegment(Vector(5.825, -22.009341, 0), Vector(5.825, -28.349974, 0)), False)
sketch7.addConstraint(Sketcher.Constraint("Coincident", 0, 2, 1, 1))
sketch7.addConstraint(Sketcher.Constraint("Coincident", 1, 2, 2, 1))
sketch7.addConstraint(Sketcher.Constraint("Coincident", 2, 2, 3, 1))
sketch7.addConstraint(Sketcher.Constraint("Coincident", 3, 2, 0, 1))
sketch7.addConstraint(Sketcher.Constraint("Tangent", 4, 2, 5, 1))
sketch7.addConstraint(Sketcher.Constraint("Coincident", 5, 2, 6, 1))
sketch7.addConstraint(Sketcher.Constraint("Coincident", 6, 2, 7, 1))
sketch7.addConstraint(Sketcher.Constraint("Tangent", 7, 2, 4, 1))
sketch7.addConstraint(Sketcher.Constraint("Tangent", 8, 2, 9, 1))
sketch7.addConstraint(Sketcher.Constraint("Coincident", 9, 2, 10, 1))
sketch7.addConstraint(Sketcher.Constraint("Coincident", 10, 2, 11, 1))
sketch7.addConstraint(Sketcher.Constraint("Coincident", 11, 2, 8, 1))
sketch7.addConstraint(Sketcher.Constraint("Tangent", 12, 2, 13, 1))
sketch7.addConstraint(Sketcher.Constraint("Coincident", 13, 2, 14, 1))
sketch7.addConstraint(Sketcher.Constraint("Coincident", 14, 2, 15, 1))
sketch7.addConstraint(Sketcher.Constraint("Coincident", 15, 2, 12, 1))
sketch7.addConstraint(Sketcher.Constraint("Vertical", 1))
sketch7.addConstraint(Sketcher.Constraint("Horizontal", 2))
sketch7.addConstraint(Sketcher.Constraint("Vertical", 3))
sketch7.addConstraint(Sketcher.Constraint("Vertical", 5))
sketch7.addConstraint(Sketcher.Constraint("Horizontal", 6))
sketch7.addConstraint(Sketcher.Constraint("Vertical", 7))
sketch7.addConstraint(Sketcher.Constraint("Vertical", 9))
sketch7.addConstraint(Sketcher.Constraint("Horizontal", 10))
sketch7.addConstraint(Sketcher.Constraint("Vertical", 11))
sketch7.addConstraint(Sketcher.Constraint("Vertical", 13))
sketch7.addConstraint(Sketcher.Constraint("Horizontal", 14))
sketch7.addConstraint(Sketcher.Constraint("Vertical", 15))
sketch7.addConstraint(Sketcher.Constraint("Equal", 0, 4))
sketch7.addConstraint(Sketcher.Constraint("Equal", 4, 8))
sketch7.addConstraint(Sketcher.Constraint("Equal", 8, 12))
sketch7.addConstraint(Sketcher.Constraint("Symmetric", 4, 3, 8, 3, -1))
sketch7.addConstraint(Sketcher.Constraint("Symmetric", 3, 2, 12, 2, -1))
sketch7.addConstraint(Sketcher.Constraint("Horizontal", 8, 3, 12, 3))
sketch7.addConstraint(Sketcher.Constraint("Horizontal", 0, 2, 3, 2))
sketch7.addConstraint(Sketcher.Constraint("Horizontal", 2, 2, 5, 2))
sketch7.addConstraint(Sketcher.Constraint("Horizontal", 10, 2, 13, 2))
sketch7.addConstraint(Sketcher.Constraint("Horizontal", 11, 2, 15, 2))
sketch7.addConstraint(Sketcher.Constraint("Equal", 7, 9))
sketch7.addConstraint(Sketcher.Constraint("Radius", 0, 4.0))
sketch7.addConstraint(Sketcher.Constraint("DistanceX", 0, 3, 4, 3, 60.0))
sketch7.addConstraint(Sketcher.Constraint("DistanceY", 12, 3, 0, 2, 56.700002))
sketch7.addConstraint(Sketcher.Constraint("DistanceX", -1, 1, 0, 3, 9.825))
sketch7.addConstraint(Sketcher.Constraint("DistanceY", 1, 2, 1, 1, 6.340659))
sketch7.addConstraint(Sketcher.Constraint("DistanceY", 11, 2, 11, 1, 6.340633))
sketch7.addConstraint(Sketcher.Constraint("DistanceY", -1, 1, 0, 3, 28.350021))
pocket5 = doc.addObject("PartDesign::Pocket", "Pocket004")
body.addObject(pocket5)
pocket5.Profile = sketch7
pocket5.Type = "ThroughAll"
pocket5.Reversed = True

# Sketch on XZ plane
sketch8 = doc.addObject("Sketcher::SketchObject", "Sketch007")
body.addObject(sketch8)
sketch8.AttachmentSupport = (doc.XZ_Plane, [""])
sketch8.MapMode = "FlatFace"
add_polygon(sketch8, [(-2.825, 42), (-2.825, 39.25), (2.825, 39.25), (2.825, 42)])  # lines 0-3
add_polygon(sketch8, [(57.175, 42), (57.175, 39.25), (62.825, 39.25), (62.825, 42)])  # lines 4-7
sketch8.addConstraint(Sketcher.Constraint("Vertical", 0))
sketch8.addConstraint(Sketcher.Constraint("Horizontal", 1))
sketch8.addConstraint(Sketcher.Constraint("Vertical", 2))
sketch8.addConstraint(Sketcher.Constraint("Horizontal", 3))
sketch8.addConstraint(Sketcher.Constraint("Vertical", 4))
sketch8.addConstraint(Sketcher.Constraint("Horizontal", 5))
sketch8.addConstraint(Sketcher.Constraint("Vertical", 6))
sketch8.addConstraint(Sketcher.Constraint("Horizontal", 7))
sketch8.addConstraint(Sketcher.Constraint("Horizontal", 1, 2, 4, 2))
sketch8.addConstraint(Sketcher.Constraint("Horizontal", 3, 2, 6, 2))
sketch8.addConstraint(Sketcher.Constraint("Equal", 3, 5))
sketch8.addConstraint(Sketcher.Constraint("DistanceY", -1, 1, 2, 2, 42.0))
sketch8.addConstraint(Sketcher.Constraint("DistanceX", 0, 2, 4, 2, 60.0))
sketch8.addConstraint(Sketcher.Constraint("DistanceX", 1, 1, 1, 2, 5.65))
sketch8.addConstraint(Sketcher.Constraint("DistanceY", 0, 2, 0, 1, 2.75))
sketch8.addConstraint(Sketcher.Constraint("DistanceX", 0, 2, -1, 1, 2.825))
pocket6 = doc.addObject("PartDesign::Pocket", "Pocket005")
body.addObject(pocket6)
pocket6.Profile = sketch8
pocket6.Type = "ThroughAll"
pocket6.Midplane = True

# Sketch on YZ plane
sketch9 = doc.addObject("Sketcher::SketchObject", "Sketch008")
body.addObject(sketch9)
sketch9.AttachmentSupport = (doc.YZ_Plane, [""])
sketch9.MapMode = "FlatFace"
sketch9.AttachmentOffset = App.Placement(Vector(0, 0, 98.302), App.Rotation())
sketch9.addGeometry(Part.ArcOfCircle(Part.Circle(Vector(-32.150001, 0.999999, 0), Vector(0, 0, 1), 0.999999), math.radians(179.999957), math.radians(270.000043)), False)
sketch9.addGeometry(Part.LineSegment(Vector(-33.15, 1, 0), Vector(-33.15, 46, 0)), False)
sketch9.addGeometry(Part.LineSegment(Vector(-33.15, 46, 0), Vector(-34.05, 46, 0)), False)
sketch9.addGeometry(Part.LineSegment(Vector(-34.05, 46, 0), Vector(-34.05, 1, 0)), False)
sketch9.addGeometry(Part.ArcOfCircle(Part.Circle(Vector(-32.15, 1, 0), Vector(0, 0, 1), 1.9), math.radians(179.999988), math.radians(270.000012)), False)
sketch9.addGeometry(Part.LineSegment(Vector(-32.15, -0.9, 0), Vector(32.15, -0.9, 0)), False)
sketch9.addGeometry(Part.ArcOfCircle(Part.Circle(Vector(32.15, 1, 0), Vector(0, 0, 1), 1.9), math.radians(-90.000012), math.radians(0.000012)), False)
sketch9.addGeometry(Part.LineSegment(Vector(34.05, 1, 0), Vector(34.05, 46, 0)), False)
sketch9.addGeometry(Part.LineSegment(Vector(34.05, 46, 0), Vector(33.15, 46, 0)), False)
sketch9.addGeometry(Part.LineSegment(Vector(33.15, 46, 0), Vector(33.15, 1, 0)), False)
sketch9.addGeometry(Part.ArcOfCircle(Part.Circle(Vector(32.150001, 0.999999, 0), Vector(0, 0, 1), 0.999999), math.radians(-90.000043), math.radians(0.000043)), False)
sketch9.addGeometry(Part.LineSegment(Vector(32.15, 0, 0), Vector(-32.15, 0, 0)), False)
sketch9.addConstraint(Sketcher.Constraint("Tangent", 0, 1, 1, 1))
sketch9.addConstraint(Sketcher.Constraint("Coincident", 1, 2, 2, 1))
sketch9.addConstraint(Sketcher.Constraint("Coincident", 2, 2, 3, 1))
sketch9.addConstraint(Sketcher.Constraint("Tangent", 3, 2, 4, 1))
sketch9.addConstraint(Sketcher.Constraint("Tangent", 4, 2, 5, 1))
sketch9.addConstraint(Sketcher.Constraint("Tangent", 5, 2, 6, 1))
sketch9.addConstraint(Sketcher.Constraint("Tangent", 6, 2, 7, 1))
sketch9.addConstraint(Sketcher.Constraint("Coincident", 7, 2, 8, 1))
sketch9.addConstraint(Sketcher.Constraint("Coincident", 8, 2, 9, 1))
sketch9.addConstraint(Sketcher.Constraint("Tangent", 9, 2, 10, 2))
sketch9.addConstraint(Sketcher.Constraint("Tangent", 10, 1, 11, 1))
sketch9.addConstraint(Sketcher.Constraint("Tangent", 11, 2, 0, 2))
sketch9.addConstraint(Sketcher.Constraint("Vertical", 1))
sketch9.addConstraint(Sketcher.Constraint("Horizontal", 2))
sketch9.addConstraint(Sketcher.Constraint("Vertical", 3))
sketch9.addConstraint(Sketcher.Constraint("Horizontal", 5))
sketch9.addConstraint(Sketcher.Constraint("Vertical", 7))
sketch9.addConstraint(Sketcher.Constraint("Horizontal", 8))
sketch9.addConstraint(Sketcher.Constraint("Vertical", 9))
sketch9.addConstraint(Sketcher.Constraint("Horizontal", 11))
sketch9.addConstraint(Sketcher.Constraint("Coincident", 4, 3, 0, 3))
sketch9.addConstraint(Sketcher.Constraint("Coincident", 10, 3, 6, 3))
sketch9.addConstraint(Sketcher.Constraint("Equal", 4, 6))
sketch9.addConstraint(Sketcher.Constraint("Symmetric", 10, 1, 11, 2, -1, 1))
sketch9.addConstraint(Sketcher.Constraint("Horizontal", 2, 2, 7, 2))
sketch9.addConstraint(Sketcher.Constraint("Radius", 0, 0.999999))
sketch9.addConstraint(Sketcher.Constraint("Radius", 4, 1.9))
sketch9.addConstraint(Sketcher.Constraint("DistanceY", 1, 1, 1, 2, 45.0))
sketch9.addConstraint(Sketcher.Constraint("DistanceX", 5, 1, 5, 2, 64.3))
pad3 = doc.addObject("PartDesign::Pad", "Pad002")
body.addObject(pad3)
pad3.Profile = sketch9
pad3.Length = 2

# Sketch on YZ plane
sketch10 = doc.addObject("Sketcher::SketchObject", "Sketch009")
body.addObject(sketch10)
sketch10.AttachmentSupport = (doc.YZ_Plane, [""])
sketch10.MapMode = "FlatFace"
sketch10.AttachmentOffset = App.Placement(Vector(0, 0, 100.302), App.Rotation())
add_polygon(sketch10, [(-28.35, 46), (-33.15, 46), (-33.15, 31.2), (-28.35, 36)])  # lines 0-3
add_polygon(sketch10, [(33.15, 46), (28.35, 46), (28.35, 36), (33.15, 31.2)])  # lines 4-7
sketch10.addConstraint(Sketcher.Constraint("Horizontal", 0))
sketch10.addConstraint(Sketcher.Constraint("Vertical", 1))
sketch10.addConstraint(Sketcher.Constraint("Vertical", 3))
sketch10.addConstraint(Sketcher.Constraint("Horizontal", 4))
sketch10.addConstraint(Sketcher.Constraint("Vertical", 5))
sketch10.addConstraint(Sketcher.Constraint("Vertical", 7))
sketch10.addConstraint(Sketcher.Constraint("Symmetric", 3, 2, 4, 2, -2))
sketch10.addConstraint(Sketcher.Constraint("Symmetric", 1, 2, 6, 2, -2))
sketch10.addConstraint(Sketcher.Constraint("Perpendicular", 2, 6))
sketch10.addConstraint(Sketcher.Constraint("Horizontal", 2, 2, 5, 2))
sketch10.addConstraint(Sketcher.Constraint("DistanceY", 3, 1, 3, 2, 10.0))
sketch10.addConstraint(Sketcher.Constraint("DistanceX", 0, 2, 0, 1, 4.8))
sketch10.addConstraint(Sketcher.Constraint("DistanceY", -1, 1, 0, 2, 46.0))
sketch10.addConstraint(Sketcher.Constraint("DistanceX", 3, 2, 4, 2, 56.7))
pad4 = doc.addObject("PartDesign::Pad", "Pad003")
body.addObject(pad4)
pad4.Profile = sketch10
pad4.Length = 4
pad4.Reversed = True

doc.recompute()
